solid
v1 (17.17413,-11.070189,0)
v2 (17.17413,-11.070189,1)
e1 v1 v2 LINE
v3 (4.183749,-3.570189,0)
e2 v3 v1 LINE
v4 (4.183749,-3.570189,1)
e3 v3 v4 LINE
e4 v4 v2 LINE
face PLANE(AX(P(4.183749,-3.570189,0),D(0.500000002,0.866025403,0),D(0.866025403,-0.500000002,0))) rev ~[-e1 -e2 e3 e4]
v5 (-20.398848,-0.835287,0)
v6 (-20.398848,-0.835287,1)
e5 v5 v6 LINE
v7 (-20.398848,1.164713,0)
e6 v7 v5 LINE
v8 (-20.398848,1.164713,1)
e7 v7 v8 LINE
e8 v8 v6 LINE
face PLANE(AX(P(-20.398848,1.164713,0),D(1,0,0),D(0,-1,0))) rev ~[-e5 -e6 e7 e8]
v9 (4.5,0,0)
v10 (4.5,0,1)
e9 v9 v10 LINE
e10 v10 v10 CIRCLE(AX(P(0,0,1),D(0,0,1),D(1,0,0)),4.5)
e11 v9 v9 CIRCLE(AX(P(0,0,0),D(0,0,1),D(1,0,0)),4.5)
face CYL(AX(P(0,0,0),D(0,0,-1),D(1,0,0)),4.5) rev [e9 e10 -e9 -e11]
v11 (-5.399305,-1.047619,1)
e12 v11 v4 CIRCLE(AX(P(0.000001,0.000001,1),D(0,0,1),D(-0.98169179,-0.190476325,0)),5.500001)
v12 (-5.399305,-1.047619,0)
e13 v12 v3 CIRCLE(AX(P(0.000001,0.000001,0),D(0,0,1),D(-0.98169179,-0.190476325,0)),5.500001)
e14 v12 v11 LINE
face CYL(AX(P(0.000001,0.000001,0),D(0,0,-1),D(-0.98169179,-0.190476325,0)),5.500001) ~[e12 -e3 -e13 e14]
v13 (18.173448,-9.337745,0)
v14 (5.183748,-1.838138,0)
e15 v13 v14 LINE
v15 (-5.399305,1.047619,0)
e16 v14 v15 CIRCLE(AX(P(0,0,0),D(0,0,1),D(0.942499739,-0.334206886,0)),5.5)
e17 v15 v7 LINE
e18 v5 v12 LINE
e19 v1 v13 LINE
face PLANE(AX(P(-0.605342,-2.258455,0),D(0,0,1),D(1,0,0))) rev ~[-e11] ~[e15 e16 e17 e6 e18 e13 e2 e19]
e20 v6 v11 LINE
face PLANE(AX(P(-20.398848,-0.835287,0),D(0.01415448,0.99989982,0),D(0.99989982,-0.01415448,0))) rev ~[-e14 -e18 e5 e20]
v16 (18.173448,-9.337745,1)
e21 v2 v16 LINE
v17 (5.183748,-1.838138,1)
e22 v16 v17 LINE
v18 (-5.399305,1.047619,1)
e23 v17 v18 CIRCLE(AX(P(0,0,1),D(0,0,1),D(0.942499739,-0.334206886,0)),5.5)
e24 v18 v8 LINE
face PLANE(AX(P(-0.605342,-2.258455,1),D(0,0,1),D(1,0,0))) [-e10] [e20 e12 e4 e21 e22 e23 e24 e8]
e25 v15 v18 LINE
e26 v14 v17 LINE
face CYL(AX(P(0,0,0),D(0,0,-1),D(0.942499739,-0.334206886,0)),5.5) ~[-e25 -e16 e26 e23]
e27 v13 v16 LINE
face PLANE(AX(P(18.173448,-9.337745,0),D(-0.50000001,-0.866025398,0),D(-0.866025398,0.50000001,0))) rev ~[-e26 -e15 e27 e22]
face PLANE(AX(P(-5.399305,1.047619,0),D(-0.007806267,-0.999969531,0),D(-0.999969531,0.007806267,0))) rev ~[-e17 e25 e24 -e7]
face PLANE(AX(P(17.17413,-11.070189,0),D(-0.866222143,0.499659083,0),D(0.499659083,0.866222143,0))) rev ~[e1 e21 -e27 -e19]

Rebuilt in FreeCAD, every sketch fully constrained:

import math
import FreeCAD as App
import Part
import Sketcher

V = App.Vector

doc = App.newDocument("Part")
params = doc.addObject("Spreadsheet::Sheet", "Params")
for row, (alias, value) in enumerate([
    ("sketch1_diameter", "9 mm"),
    ("sketch1_radius", "5.500001 mm"),
    ("sketch1_radius2", "5.5 mm"),
    ("sketch1_height", "2 mm"),
    ("sketch1_length", "15 mm"),
    ("pad1_length", "1 mm"),
], start=1):
    params.set(f"A{row}", alias)
    params.set(f"B{row}", "=" + value)
    params.setAlias(f"B{row}", alias)

body = doc.addObject("PartDesign::Body", "Body")

# Sketch on XY plane
sketch1 = body.newObject("Sketcher::SketchObject", "Sketch")
sketch1.AttachmentSupport = (doc.getObject("XY_Plane"), [""])
sketch1.MapMode = "FlatFace"
sketch1.addGeometry(Part.LineSegment(V(-20.398848, -0.835287, 0), V(-5.399305, -1.047619, 0)), False)
sketch1.addGeometry(Part.ArcOfCircle(Part.Circle(V(0.000001, 0.000001, 0), V(0, 0, 1), 5.500001), math.radians(-169.019417), math.radians(-40.47569)), False)
sketch1.addGeometry(Part.LineSegment(V(4.183749, -3.570189, 0), V(17.17413, -11.070189, 0)), False)
sketch1.addGeometry(Part.LineSegment(V(17.17413, -11.070189, 0), V(18.173448, -9.337745, 0)), False)
sketch1.addGeometry(Part.LineSegment(V(18.173448, -9.337745, 0), V(5.183748, -1.838138, 0)), False)
sketch1.addGeometry(Part.ArcOfCircle(Part.Circle(V(0, 0, 0), V(0, 0, 1), 5.5), math.radians(-19.524316), math.radians(169.019422)), False)
sketch1.addGeometry(Part.LineSegment(V(-5.399305, 1.047619, 0), V(-20.398848, 1.164713, 0)), False)
sketch1.addGeometry(Part.LineSegment(V(-20.398848, 1.164713, 0), V(-20.398848, -0.835287, 0)), False)
sketch1.addGeometry(Part.Circle(V(0, 0, 0), V(0, 0, 1), 4.5), False)
sketch1.addConstraint(Sketcher.Constraint("Coincident", 0, 2, 1, 1))
sketch1.addConstraint(Sketcher.Constraint("Coincident", 1, 2, 2, 1))
sketch1.addConstraint(Sketcher.Constraint("Coincident", 2, 2, 3, 1))
sketch1.addConstraint(Sketcher.Constraint("Coincident", 3, 2, 4, 1))
sketch1.addConstraint(Sketcher.Constraint("Coincident", 4, 2, 5, 1))
sketch1.addConstraint(Sketcher.Constraint("Coincident", 5, 2, 6, 1))
sketch1.addConstraint(Sketcher.Constraint("Coincident", 6, 2, 7, 1))
sketch1.addConstraint(Sketcher.Constraint("Coincident", 7, 2, 0, 1))
sketch1.addConstraint(Sketcher.Constraint("Vertical", 7))
sketch1.addConstraint(Sketcher.Constraint("Coincident", 1, 3, -1, 1))
sketch1.addConstraint(Sketcher.Constraint("Coincident", 5, 3, -1, 1))
sketch1.addConstraint(Sketcher.Constraint("Coincident", 8, 3, -1, 1))
sketch1.addConstraint(Sketcher.Constraint("Diameter", 8, 9.0))
sketch1.addConstraint(Sketcher.Constraint("Radius", 1, 5.500001))
sketch1.addConstraint(Sketcher.Constraint("Radius", 5, 5.5))
sketch1.addConstraint(Sketcher.Constraint("DistanceY", 7, 2, 7, 1, 2.0))
sketch1.addConstraint(Sketcher.Constraint("Distance", 2, 15.0))
sketch1.addConstraint(Sketcher.Constraint("Distance", 3, 2.0))
sketch1.addConstraint(Sketcher.Constraint("Distance", 6, 15.0))
sketch1.addConstraint(Sketcher.Constraint("DistanceX", 1, 2, 4, 2, 0.999999))
sketch1.addConstraint(Sketcher.Constraint("DistanceY", 2, 2, 1, 2, 7.5))
sketch1.addConstraint(Sketcher.Constraint("DistanceX", 1, 2, 3, 2, 13.989699))
sketch1.addConstraint(Sketcher.Constraint("DistanceY", 0, 2, -1, 1, 1.047619))
sketch1.addConstraint(Sketcher.Constraint("DistanceX", -1, 1, 1, 2, 4.183749))
sketch1.addConstraint(Sketcher.Constraint("DistanceY", -1, 1, 5, 2, 1.047619))
sketch1.addConstraint(Sketcher.Constraint("DistanceX", 6, 2, -1, 1, 20.398848))
sketch1.setExpression("Constraints[12]", "Params.sketch1_diameter")
sketch1.setExpression("Constraints[13]", "Params.sketch1_radius")
sketch1.setExpression("Constraints[14]", "Params.sketch1_radius2")
sketch1.setExpression("Constraints[15]", "Params.sketch1_height")
sketch1.setExpression("Constraints[16]", "Params.sketch1_length")
pad1 = body.newObject("PartDesign::Pad", "Pad")
pad1.Profile = sketch1
pad1.setExpression("Length", "Params.pad1_length")

doc.recompute()
